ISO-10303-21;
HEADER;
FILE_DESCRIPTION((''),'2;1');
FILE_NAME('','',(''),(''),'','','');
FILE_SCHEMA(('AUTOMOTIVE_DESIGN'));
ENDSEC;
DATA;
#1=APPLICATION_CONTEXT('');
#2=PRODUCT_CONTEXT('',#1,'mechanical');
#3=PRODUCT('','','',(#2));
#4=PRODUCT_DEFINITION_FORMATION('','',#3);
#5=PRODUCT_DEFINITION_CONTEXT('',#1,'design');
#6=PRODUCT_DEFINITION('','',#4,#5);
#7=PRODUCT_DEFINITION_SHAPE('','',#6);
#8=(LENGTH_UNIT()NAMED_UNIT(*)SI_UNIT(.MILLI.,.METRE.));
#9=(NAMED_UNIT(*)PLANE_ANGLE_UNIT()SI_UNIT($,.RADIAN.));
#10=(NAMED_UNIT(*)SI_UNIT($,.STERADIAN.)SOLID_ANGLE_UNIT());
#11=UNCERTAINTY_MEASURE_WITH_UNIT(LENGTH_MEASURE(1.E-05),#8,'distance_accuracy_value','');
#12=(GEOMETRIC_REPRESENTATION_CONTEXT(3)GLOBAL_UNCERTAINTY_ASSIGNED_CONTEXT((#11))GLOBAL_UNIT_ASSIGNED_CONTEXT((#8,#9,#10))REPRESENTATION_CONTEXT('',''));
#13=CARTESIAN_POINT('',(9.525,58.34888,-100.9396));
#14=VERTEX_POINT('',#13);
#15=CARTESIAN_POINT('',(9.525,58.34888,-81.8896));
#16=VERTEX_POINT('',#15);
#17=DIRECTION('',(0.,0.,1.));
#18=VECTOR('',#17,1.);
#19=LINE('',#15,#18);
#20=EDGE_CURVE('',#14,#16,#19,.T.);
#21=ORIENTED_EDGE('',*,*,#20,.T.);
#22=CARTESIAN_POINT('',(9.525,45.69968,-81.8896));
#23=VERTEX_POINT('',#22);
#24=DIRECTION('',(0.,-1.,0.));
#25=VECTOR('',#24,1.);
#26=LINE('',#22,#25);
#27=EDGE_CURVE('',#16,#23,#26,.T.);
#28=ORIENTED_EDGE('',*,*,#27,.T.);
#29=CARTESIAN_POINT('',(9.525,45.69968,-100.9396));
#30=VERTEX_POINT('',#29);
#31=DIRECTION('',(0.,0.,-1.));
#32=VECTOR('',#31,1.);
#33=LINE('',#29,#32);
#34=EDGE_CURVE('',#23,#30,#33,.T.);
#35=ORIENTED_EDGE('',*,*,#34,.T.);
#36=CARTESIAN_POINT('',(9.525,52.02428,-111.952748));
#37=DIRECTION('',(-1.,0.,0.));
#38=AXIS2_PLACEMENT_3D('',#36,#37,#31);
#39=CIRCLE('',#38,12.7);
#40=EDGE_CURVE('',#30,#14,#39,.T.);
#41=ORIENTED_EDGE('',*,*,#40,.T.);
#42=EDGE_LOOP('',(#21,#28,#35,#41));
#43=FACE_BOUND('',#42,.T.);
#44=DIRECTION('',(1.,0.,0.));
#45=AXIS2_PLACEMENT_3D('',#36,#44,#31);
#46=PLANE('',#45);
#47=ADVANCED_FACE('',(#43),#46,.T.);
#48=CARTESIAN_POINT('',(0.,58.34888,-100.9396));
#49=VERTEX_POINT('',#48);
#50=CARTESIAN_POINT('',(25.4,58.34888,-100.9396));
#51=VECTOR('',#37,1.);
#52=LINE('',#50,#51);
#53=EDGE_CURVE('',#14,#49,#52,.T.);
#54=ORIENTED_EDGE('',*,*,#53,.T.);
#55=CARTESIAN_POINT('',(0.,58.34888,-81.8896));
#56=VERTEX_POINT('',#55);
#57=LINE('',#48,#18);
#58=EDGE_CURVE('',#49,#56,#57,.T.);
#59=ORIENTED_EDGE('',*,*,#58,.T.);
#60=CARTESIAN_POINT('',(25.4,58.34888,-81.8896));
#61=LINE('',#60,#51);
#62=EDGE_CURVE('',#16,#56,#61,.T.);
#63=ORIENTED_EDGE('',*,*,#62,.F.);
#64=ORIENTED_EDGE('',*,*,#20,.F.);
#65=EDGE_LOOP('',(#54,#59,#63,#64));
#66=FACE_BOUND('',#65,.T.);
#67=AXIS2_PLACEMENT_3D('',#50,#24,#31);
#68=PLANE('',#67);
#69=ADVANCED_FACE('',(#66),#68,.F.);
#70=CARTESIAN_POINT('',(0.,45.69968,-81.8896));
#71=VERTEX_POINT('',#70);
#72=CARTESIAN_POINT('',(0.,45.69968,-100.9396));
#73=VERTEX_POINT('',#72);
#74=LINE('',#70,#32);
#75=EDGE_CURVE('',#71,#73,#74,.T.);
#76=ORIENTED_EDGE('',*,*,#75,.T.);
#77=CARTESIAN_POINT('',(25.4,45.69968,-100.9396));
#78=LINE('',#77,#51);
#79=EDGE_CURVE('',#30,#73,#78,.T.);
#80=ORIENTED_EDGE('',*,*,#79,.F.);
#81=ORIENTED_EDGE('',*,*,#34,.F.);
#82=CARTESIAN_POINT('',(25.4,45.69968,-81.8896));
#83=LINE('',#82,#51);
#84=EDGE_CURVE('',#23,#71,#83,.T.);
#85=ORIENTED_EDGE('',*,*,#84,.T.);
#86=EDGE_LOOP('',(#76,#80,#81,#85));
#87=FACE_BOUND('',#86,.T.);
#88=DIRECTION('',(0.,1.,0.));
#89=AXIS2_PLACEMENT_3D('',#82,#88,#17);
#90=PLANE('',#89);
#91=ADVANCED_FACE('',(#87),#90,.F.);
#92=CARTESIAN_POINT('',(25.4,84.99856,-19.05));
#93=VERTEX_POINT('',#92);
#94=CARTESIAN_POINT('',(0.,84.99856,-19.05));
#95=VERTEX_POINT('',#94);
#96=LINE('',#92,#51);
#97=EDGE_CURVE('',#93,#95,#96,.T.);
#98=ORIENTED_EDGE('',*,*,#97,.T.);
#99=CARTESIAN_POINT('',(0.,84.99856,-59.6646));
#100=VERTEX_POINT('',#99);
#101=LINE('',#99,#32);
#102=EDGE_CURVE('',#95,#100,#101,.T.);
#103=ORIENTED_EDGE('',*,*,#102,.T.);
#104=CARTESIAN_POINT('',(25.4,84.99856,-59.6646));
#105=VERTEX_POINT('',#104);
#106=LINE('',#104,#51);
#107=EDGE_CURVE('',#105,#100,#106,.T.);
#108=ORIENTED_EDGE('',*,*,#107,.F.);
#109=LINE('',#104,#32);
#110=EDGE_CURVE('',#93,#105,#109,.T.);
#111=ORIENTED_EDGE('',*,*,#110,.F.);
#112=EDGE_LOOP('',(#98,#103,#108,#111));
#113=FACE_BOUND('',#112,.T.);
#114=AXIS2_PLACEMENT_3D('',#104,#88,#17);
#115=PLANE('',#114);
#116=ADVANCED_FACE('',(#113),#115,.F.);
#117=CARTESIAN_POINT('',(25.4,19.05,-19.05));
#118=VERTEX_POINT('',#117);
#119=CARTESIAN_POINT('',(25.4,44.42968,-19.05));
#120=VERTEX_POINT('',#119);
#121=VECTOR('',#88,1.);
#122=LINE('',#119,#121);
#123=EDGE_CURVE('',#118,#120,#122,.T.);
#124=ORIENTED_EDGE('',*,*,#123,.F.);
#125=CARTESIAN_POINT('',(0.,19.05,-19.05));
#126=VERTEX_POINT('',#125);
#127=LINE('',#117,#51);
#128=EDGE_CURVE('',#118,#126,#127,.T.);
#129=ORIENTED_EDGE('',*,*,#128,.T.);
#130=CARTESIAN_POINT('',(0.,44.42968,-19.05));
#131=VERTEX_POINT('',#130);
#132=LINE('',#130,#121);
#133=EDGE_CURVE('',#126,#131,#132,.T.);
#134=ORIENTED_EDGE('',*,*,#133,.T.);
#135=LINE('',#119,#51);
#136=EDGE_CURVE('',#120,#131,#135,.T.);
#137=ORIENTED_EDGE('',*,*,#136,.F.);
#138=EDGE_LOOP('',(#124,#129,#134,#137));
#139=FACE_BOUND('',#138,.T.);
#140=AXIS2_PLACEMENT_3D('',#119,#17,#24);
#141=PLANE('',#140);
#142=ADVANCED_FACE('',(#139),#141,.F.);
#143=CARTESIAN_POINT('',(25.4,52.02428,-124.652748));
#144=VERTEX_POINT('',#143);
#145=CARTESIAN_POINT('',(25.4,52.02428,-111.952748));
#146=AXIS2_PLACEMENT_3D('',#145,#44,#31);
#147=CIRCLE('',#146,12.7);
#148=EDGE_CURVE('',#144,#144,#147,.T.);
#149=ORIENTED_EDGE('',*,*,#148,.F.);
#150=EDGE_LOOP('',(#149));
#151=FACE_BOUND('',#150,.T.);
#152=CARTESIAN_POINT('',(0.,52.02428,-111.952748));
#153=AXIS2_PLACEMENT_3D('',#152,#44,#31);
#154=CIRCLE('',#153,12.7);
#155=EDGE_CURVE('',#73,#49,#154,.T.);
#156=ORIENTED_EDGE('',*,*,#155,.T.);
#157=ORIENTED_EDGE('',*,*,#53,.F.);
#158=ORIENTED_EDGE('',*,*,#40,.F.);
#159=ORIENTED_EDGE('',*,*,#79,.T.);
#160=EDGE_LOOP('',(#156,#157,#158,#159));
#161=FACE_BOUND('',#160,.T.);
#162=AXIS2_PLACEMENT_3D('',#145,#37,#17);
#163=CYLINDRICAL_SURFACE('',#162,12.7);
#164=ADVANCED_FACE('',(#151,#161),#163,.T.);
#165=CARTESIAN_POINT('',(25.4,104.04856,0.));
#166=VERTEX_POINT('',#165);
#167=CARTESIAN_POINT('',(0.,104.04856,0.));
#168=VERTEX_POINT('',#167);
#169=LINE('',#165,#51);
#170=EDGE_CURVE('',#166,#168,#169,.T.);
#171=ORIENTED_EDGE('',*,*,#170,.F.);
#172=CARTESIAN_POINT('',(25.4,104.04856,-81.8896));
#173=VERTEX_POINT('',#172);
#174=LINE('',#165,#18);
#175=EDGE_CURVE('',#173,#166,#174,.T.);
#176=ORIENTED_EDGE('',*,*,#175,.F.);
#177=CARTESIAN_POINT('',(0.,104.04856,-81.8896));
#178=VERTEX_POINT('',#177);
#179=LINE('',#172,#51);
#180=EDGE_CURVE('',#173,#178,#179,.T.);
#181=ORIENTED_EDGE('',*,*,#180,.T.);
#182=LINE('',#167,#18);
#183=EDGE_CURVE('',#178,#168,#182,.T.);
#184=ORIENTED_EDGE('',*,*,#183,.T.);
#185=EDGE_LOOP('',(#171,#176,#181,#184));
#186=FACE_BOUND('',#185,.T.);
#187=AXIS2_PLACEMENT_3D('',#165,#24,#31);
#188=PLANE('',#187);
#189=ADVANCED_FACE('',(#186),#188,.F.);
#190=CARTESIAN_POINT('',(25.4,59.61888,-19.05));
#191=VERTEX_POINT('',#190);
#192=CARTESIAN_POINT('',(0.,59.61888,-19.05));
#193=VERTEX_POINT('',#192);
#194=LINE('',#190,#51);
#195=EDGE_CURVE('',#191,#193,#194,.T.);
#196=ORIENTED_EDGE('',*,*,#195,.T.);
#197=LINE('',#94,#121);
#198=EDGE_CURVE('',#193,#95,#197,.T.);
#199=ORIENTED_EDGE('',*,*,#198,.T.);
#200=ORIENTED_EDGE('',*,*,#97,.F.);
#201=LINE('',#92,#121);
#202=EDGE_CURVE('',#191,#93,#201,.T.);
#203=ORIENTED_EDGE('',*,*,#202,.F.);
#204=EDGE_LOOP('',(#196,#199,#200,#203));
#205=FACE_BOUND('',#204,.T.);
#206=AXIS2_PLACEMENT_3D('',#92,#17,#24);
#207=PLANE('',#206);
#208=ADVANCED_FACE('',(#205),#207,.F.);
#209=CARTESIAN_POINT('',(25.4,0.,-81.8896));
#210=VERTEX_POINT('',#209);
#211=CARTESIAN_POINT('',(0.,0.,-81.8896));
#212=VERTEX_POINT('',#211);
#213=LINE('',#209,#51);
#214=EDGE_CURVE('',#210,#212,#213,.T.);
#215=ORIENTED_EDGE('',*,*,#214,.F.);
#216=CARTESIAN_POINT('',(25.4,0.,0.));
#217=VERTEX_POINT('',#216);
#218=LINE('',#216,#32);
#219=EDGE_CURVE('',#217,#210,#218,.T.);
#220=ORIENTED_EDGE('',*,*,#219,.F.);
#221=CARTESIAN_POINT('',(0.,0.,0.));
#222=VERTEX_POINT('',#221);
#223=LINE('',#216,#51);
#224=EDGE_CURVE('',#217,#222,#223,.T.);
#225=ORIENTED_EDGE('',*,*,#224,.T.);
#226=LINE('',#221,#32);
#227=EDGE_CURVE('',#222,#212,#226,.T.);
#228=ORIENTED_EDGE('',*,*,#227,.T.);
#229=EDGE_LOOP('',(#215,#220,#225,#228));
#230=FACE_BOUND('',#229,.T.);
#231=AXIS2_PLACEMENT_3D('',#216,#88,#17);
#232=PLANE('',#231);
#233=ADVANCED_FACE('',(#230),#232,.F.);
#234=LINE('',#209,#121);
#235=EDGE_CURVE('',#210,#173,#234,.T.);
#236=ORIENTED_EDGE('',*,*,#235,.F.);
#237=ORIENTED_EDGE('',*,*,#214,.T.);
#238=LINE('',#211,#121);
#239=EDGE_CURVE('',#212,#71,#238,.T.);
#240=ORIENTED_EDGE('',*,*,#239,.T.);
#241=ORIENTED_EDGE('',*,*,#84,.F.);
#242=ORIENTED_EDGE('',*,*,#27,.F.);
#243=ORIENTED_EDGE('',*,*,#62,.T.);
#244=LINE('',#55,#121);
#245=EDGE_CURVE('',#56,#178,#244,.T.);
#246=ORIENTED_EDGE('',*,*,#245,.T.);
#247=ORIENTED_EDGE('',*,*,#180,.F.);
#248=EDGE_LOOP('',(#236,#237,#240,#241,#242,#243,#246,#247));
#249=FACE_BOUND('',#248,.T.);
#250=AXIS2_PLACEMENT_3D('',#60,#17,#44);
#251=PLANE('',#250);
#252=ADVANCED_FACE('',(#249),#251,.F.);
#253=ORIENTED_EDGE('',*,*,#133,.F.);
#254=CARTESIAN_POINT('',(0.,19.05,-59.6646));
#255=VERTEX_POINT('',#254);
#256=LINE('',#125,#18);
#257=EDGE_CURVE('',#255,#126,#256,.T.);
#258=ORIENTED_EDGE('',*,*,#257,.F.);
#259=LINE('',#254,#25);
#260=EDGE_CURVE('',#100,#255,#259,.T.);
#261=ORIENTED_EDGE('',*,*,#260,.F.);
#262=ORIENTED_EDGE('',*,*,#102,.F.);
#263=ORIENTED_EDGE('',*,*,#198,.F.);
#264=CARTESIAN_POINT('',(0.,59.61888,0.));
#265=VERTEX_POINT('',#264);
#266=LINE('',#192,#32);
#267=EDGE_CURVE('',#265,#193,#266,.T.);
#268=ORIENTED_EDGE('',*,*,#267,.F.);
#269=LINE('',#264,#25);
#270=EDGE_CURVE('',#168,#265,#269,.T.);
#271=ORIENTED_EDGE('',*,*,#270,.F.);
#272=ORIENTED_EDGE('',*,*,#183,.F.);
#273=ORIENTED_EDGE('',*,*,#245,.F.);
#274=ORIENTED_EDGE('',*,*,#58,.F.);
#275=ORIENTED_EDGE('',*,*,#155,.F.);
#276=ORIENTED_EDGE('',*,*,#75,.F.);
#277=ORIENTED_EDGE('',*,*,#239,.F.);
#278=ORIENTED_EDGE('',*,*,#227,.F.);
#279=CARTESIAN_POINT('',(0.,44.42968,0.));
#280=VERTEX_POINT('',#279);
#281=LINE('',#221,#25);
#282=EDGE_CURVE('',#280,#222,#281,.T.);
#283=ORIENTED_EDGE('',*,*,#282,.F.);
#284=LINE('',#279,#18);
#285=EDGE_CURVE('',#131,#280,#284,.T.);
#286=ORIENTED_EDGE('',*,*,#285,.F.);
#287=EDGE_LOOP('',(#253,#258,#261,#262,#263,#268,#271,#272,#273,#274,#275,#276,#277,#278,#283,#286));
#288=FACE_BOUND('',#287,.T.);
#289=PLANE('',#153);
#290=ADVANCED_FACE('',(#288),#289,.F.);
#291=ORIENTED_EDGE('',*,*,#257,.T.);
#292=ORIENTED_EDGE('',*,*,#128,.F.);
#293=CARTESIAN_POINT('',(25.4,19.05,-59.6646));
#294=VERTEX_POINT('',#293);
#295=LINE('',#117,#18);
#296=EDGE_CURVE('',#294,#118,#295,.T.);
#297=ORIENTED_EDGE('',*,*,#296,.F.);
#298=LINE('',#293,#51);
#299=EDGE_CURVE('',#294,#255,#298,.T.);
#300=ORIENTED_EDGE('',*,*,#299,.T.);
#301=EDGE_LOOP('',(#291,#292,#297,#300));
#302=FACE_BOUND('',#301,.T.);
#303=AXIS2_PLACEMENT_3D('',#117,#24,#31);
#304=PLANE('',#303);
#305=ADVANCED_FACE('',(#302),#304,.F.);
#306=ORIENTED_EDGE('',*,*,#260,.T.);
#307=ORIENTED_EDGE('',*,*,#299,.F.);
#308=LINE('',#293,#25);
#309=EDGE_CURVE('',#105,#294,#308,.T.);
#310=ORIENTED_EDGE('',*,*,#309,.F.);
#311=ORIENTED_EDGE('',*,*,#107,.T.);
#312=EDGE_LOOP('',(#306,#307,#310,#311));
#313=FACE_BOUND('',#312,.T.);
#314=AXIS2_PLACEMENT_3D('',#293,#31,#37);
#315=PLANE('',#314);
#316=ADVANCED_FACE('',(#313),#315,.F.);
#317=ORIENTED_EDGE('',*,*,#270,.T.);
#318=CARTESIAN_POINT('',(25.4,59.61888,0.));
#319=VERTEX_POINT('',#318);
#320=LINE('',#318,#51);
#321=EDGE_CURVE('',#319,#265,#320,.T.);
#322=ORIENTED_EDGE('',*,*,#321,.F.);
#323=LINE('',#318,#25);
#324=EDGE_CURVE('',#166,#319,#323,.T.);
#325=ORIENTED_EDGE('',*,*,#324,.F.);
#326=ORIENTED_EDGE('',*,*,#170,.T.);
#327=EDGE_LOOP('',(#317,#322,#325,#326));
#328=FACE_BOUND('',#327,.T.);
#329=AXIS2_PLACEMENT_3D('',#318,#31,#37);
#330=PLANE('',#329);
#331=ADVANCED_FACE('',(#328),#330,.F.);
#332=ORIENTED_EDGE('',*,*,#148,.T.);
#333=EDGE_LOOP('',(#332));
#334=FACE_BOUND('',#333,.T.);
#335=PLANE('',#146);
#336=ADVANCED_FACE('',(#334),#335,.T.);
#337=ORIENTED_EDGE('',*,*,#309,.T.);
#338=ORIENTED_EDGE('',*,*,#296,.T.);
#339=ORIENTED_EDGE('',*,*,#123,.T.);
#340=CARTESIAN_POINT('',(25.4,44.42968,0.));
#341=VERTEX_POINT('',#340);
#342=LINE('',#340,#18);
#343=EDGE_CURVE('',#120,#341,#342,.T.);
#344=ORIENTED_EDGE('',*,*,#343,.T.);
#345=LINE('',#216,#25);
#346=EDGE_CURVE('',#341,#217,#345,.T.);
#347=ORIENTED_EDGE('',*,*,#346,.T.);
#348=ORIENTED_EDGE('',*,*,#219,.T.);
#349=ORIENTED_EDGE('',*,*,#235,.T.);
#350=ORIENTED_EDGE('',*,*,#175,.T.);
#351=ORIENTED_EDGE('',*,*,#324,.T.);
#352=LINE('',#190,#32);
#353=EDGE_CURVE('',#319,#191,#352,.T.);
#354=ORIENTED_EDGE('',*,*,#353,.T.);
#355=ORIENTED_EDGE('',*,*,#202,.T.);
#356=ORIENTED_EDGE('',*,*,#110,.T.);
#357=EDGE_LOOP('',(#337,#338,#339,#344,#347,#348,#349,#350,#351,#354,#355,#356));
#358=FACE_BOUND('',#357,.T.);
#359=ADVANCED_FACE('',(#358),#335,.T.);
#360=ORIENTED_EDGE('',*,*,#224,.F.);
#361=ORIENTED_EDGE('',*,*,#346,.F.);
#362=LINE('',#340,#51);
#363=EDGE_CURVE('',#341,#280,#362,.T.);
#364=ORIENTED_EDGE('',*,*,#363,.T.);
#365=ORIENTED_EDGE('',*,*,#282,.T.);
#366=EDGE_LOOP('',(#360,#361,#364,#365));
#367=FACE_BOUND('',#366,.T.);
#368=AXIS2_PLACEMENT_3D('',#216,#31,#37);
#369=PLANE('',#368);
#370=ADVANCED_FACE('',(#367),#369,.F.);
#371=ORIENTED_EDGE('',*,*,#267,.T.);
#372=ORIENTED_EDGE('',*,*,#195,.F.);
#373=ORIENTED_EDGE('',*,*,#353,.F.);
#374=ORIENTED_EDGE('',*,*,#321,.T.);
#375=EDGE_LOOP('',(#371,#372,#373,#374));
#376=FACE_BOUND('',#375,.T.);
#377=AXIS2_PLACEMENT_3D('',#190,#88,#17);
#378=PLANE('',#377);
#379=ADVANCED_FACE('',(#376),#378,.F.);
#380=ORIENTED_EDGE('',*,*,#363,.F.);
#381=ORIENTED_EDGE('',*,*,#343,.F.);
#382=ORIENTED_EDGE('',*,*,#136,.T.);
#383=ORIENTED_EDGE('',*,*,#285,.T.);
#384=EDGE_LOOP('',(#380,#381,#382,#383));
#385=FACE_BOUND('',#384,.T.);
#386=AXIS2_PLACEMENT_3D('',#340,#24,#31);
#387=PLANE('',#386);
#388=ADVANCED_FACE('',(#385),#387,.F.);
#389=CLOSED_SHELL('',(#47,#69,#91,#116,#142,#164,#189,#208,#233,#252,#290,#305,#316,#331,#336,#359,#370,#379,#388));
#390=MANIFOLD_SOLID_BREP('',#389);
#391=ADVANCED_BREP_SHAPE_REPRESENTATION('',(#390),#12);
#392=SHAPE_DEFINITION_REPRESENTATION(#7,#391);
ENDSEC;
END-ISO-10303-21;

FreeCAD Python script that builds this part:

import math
import FreeCAD as App
import Part
import Sketcher
Q = App.Units.Quantity

doc = App.newDocument("Part")
body = doc.addObject("PartDesign::Body", "Body")

# Sketch on YZ plane
sketch1 = body.newObject("Sketcher::SketchObject", "Sketch")
sketch1.AttachmentSupport = (doc.getObject("YZ_Plane"), [""])
sketch1.MapMode = "FlatFace"
sketch1.addGeometry([
    Part.LineSegment(App.Vector(44, 0, 0), App.Vector(0, 0, 0)),  # 0
    Part.LineSegment(App.Vector(0, 0, 0), App.Vector(0, -82, 0)),  # 1
    Part.LineSegment(App.Vector(0, -82, 0), App.Vector(46, -82, 0)),  # 2
    Part.LineSegment(App.Vector(46, -82, 0), App.Vector(46, -101, 0)),  # 3
    Part.ArcOfCircle(Part.Circle(App.Vector(52, -112, 0), App.Vector(0, 0, 1), 13), math.radians(120), math.radians(420)),  # 4
    Part.LineSegment(App.Vector(58, -101, 0), App.Vector(58, -82, 0)),  # 5
    Part.LineSegment(App.Vector(58, -82, 0), App.Vector(104, -82, 0)),  # 6
    Part.LineSegment(App.Vector(104, -82, 0), App.Vector(104, 0, 0)),  # 7
    Part.LineSegment(App.Vector(104, 0, 0), App.Vector(60, 0, 0)),  # 8
    Part.LineSegment(App.Vector(60, 0, 0), App.Vector(60, -19, 0)),  # 9
    Part.LineSegment(App.Vector(60, -19, 0), App.Vector(85, -19, 0)),  # 10
    Part.LineSegment(App.Vector(85, -19, 0), App.Vector(85, -60, 0)),  # 11
    Part.LineSegment(App.Vector(85, -60, 0), App.Vector(19, -60, 0)),  # 12
    Part.LineSegment(App.Vector(19, -60, 0), App.Vector(19, -19, 0)),  # 13
    Part.LineSegment(App.Vector(19, -19, 0), App.Vector(44, -19, 0)),  # 14
    Part.LineSegment(App.Vector(44, -19, 0), App.Vector(44, 0, 0)),  # 15
], False)
sketch1.addConstraint([
    Sketcher.Constraint("Coincident", 0, 2, 1, 1),
    Sketcher.Constraint("Coincident", 1, 2, 2, 1),
    Sketcher.Constraint("Coincident", 2, 2, 3, 1),
    Sketcher.Constraint("Coincident", 3, 2, 4, 1),
    Sketcher.Constraint("Coincident", 4, 2, 5, 1),
    Sketcher.Constraint("Coincident", 5, 2, 6, 1),
    Sketcher.Constraint("Coincident", 6, 2, 7, 1),
    Sketcher.Constraint("Coincident", 7, 2, 8, 1),
    Sketcher.Constraint("Coincident", 8, 2, 9, 1),
    Sketcher.Constraint("Coincident", 9, 2, 10, 1),
    Sketcher.Constraint("Coincident", 10, 2, 11, 1),
    Sketcher.Constraint("Coincident", 11, 2, 12, 1),
    Sketcher.Constraint("Coincident", 12, 2, 13, 1),
    Sketcher.Constraint("Coincident", 13, 2, 14, 1),
    Sketcher.Constraint("Coincident", 14, 2, 15, 1),
    Sketcher.Constraint("Coincident", 15, 2, 0, 1),
    Sketcher.Constraint("Horizontal", 0),
    Sketcher.Constraint("Vertical", 1),
    Sketcher.Constraint("Horizontal", 2),
    Sketcher.Constraint("Vertical", 3),
    Sketcher.Constraint("Vertical", 5),
    Sketcher.Constraint("Horizontal", 6),
    Sketcher.Constraint("Vertical", 7),
    Sketcher.Constraint("Horizontal", 8),
    Sketcher.Constraint("Vertical", 9),
    Sketcher.Constraint("Horizontal", 10),
    Sketcher.Constraint("Vertical", 11),
    Sketcher.Constraint("Horizontal", 12),
    Sketcher.Constraint("Vertical", 13),
    Sketcher.Constraint("Horizontal", 14),
    Sketcher.Constraint("Vertical", 15),
    Sketcher.Constraint("Coincident", 0, 2, -1, 1),
    Sketcher.Constraint("PointOnObject", 7, 2, -1),
    Sketcher.Constraint("Horizontal", 3, 2, 4, 2),
    Sketcher.Constraint("Horizontal", 2, 2, 5, 2),
    Sketcher.Constraint("Horizontal", 10, 2, 13, 2),
    Sketcher.Constraint("Equal", 2, 6),
    Sketcher.Constraint("Equal", 0, 8),
    Sketcher.Constraint("Equal", 10, 14),
    Sketcher.Constraint("Equal", 5, 9),
    Sketcher.Constraint("Radius", 4, Q("0.5 in")),
    Sketcher.Constraint("DistanceY", 3, 2, 3, 1, Q("0.75 in")),
    Sketcher.Constraint("DistanceY", 1, 2, 1, 1, Q("3.224 in")),
    Sketcher.Constraint("DistanceY", 11, 2, 11, 1, Q("1.599 in")),
    Sketcher.Constraint("DistanceX", -1, 1, 12, 2, Q("0.75 in")),
    Sketcher.Constraint("DistanceX", 5, 2, 8, 2, Q("0.05 in")),
    Sketcher.Constraint("DistanceX", 0, 2, 0, 1, Q("1.7492 in")),
    Sketcher.Constraint("DistanceX", 12, 2, 12, 1, Q("2.5964 in")),
])
pad1 = body.newObject("PartDesign::Pad", "Pad")
pad1.Profile = sketch1
pad1.Length = Q("1 in")

# Sketch on YZ plane
sketch2 = body.newObject("Sketcher::SketchObject", "Sketch001")
sketch2.AttachmentSupport = (doc.getObject("YZ_Plane"), [""])
sketch2.MapMode = "FlatFace"
sketch2.AttachmentOffset = App.Placement(App.Vector(0, 0, 0.375 * 25.4), App.Rotation())
sketch2.addGeometry([
    Part.LineSegment(App.Vector(58, -82, 0), App.Vector(46, -82, 0)),
    Part.LineSegment(App.Vector(46, -82, 0), App.Vector(46, -101, 0)),
    Part.ArcOfCircle(Part.Circle(App.Vector(52, -112, 0), App.Vector(0, 0, 1), 13), math.radians(60), math.radians(120)),
    Part.LineSegment(App.Vector(58, -101, 0), App.Vector(58, -82, 0)),
], False)
sketch2.addConstraint([
    Sketcher.Constraint("Coincident", 0, 2, 1, 1),
    Sketcher.Constraint("Coincident", 1, 2, 2, 2),
    Sketcher.Constraint("Coincident", 2, 1, 3, 1),
    Sketcher.Constraint("Coincident", 3, 2, 0, 1),
    Sketcher.Constraint("Horizontal", 0),
    Sketcher.Constraint("Vertical", 1),
    Sketcher.Constraint("Vertical", 3),
    Sketcher.Constraint("Horizontal", 1, 2, 2, 1),
    Sketcher.Constraint("Radius", 2, Q("0.5 in")),
    Sketcher.Constraint("DistanceY", 1, 2, 1, 1, Q("0.75 in")),
    Sketcher.Constraint("DistanceX", 0, 2, 0, 1, Q("0.498 in")),
    Sketcher.Constraint("DistanceY", 0, 2, -1, 1, Q("3.224 in")),
    Sketcher.Constraint("DistanceX", -1, 1, 2, 3, Q("2.0482 in")),
])
pocket1 = body.newObject("PartDesign::Pocket", "Pocket")
pocket1.Profile = sketch2
pocket1.Length = Q("0.625 in")
pocket1.Reversed = True

doc.recompute()
